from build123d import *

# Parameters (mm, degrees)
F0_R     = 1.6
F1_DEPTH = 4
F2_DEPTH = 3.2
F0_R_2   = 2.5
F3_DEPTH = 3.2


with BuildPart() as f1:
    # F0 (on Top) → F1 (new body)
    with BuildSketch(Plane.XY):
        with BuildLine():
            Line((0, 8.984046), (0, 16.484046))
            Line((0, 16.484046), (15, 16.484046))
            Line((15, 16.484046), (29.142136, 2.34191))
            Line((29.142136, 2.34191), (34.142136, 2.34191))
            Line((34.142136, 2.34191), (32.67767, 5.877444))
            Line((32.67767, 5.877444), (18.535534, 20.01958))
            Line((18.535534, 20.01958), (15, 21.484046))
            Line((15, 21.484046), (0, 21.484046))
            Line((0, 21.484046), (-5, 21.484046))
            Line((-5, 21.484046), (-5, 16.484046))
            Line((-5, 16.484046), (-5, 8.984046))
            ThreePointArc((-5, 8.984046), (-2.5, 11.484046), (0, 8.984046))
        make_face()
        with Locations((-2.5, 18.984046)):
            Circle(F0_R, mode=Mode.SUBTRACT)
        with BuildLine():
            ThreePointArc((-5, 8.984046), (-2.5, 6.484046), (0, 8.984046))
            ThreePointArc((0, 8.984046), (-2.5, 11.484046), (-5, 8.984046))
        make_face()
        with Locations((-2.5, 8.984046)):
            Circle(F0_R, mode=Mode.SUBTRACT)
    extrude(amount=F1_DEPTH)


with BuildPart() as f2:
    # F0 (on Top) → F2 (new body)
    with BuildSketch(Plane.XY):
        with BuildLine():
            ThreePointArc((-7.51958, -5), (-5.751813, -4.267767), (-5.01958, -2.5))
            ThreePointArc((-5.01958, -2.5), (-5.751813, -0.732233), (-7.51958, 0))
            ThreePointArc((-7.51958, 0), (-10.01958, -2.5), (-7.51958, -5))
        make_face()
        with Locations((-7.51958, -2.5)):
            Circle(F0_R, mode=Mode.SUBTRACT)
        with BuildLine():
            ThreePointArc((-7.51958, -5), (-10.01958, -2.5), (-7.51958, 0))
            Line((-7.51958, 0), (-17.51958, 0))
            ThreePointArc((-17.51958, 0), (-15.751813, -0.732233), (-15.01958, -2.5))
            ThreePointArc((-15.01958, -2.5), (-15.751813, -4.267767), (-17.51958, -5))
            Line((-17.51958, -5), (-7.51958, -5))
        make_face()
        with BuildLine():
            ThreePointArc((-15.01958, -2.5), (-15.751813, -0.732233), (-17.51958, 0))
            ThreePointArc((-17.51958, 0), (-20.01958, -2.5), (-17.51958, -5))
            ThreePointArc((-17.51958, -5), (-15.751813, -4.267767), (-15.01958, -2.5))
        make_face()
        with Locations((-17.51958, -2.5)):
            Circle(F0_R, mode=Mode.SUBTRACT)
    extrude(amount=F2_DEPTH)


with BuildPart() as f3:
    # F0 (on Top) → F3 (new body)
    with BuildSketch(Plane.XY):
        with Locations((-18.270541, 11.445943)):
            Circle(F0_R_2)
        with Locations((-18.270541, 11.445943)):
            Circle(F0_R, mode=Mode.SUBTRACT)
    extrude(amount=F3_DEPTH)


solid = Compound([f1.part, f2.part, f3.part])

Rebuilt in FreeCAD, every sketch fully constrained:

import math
import FreeCAD as App
import Part
import Sketcher
from FreeCAD import Vector
Q = App.Units.Quantity

doc = App.newDocument("Part")
params = doc.addObject("Spreadsheet::Sheet", "Params")
for row, (alias, value) in enumerate([
    ("sketch1_diameter", "3.2 mm"),
    ("sketch1_radius", "2.5 mm"),
    ("sketch1_width", "15 mm"),
    ("sketch1_width2", "5 mm"),
    ("sketch1_length", "20.000001 mm"),
    ("pad1_length", "4 mm"),
    ("sketch2_diameter", "3.2 mm"),
    ("sketch2_radius", "2.5 mm"),
    ("sketch2_width", "10 mm"),
    ("pad2_length", "3.2 mm"),
    ("sketch3_diameter", "5 mm"),
    ("sketch3_diameter2", "3.2 mm"),
    ("pad3_length", "3.2 mm"),
], start=1):
    params.set(f"A{row}", alias)
    params.set(f"B{row}", "=" + value)
    params.setAlias(f"B{row}", alias)

body = doc.addObject("PartDesign::Body", "Body")

# Sketch on XY plane
sketch1 = doc.addObject("Sketcher::SketchObject", "Sketch")
body.addObject(sketch1)
sketch1.AttachmentSupport = (doc.XY_Plane, [""])
sketch1.MapMode = "FlatFace"
sketch1.addGeometry([
    Part.LineSegment(Vector(0, 9, 0), Vector(0, 16.5, 0)),  # 0
    Part.LineSegment(Vector(0, 16.5, 0), Vector(15, 16.5, 0)),  # 1
    Part.LineSegment(Vector(15, 16.5, 0), Vector(29.1, 2.3, 0)),  # 2
    Part.LineSegment(Vector(29.1, 2.3, 0), Vector(34.1, 2.3, 0)),  # 3
    Part.LineSegment(Vector(34.1, 2.3, 0), Vector(32.7, 5.9, 0)),  # 4
    Part.LineSegment(Vector(32.7, 5.9, 0), Vector(18.5, 20, 0)),  # 5
    Part.LineSegment(Vector(18.5, 20, 0), Vector(15, 21.5, 0)),  # 6
    Part.LineSegment(Vector(15, 21.5, 0), Vector(-5, 21.5, 0)),  # 7
    Part.LineSegment(Vector(-5, 21.5, 0), Vector(-5, 9, 0)),  # 8
    Part.ArcOfCircle(Part.Circle(Vector(-2.5, 9, 0), Vector(0, 0, 1), 2.5), math.radians(180), math.radians(360)),  # 9
    Part.Circle(Vector(-2.5, 9, 0), Vector(0, 0, 1), 1.6),  # 10
    Part.Circle(Vector(-2.5, 19, 0), Vector(0, 0, 1), 1.6),  # 11
], False)
sketch1.addConstraint([
    Sketcher.Constraint("Coincident", 0, 2, 1, 1),
    Sketcher.Constraint("Coincident", 1, 2, 2, 1),
    Sketcher.Constraint("Coincident", 2, 2, 3, 1),
    Sketcher.Constraint("Coincident", 3, 2, 4, 1),
    Sketcher.Constraint("Coincident", 4, 2, 5, 1),
    Sketcher.Constraint("Coincident", 5, 2, 6, 1),
    Sketcher.Constraint("Coincident", 6, 2, 7, 1),
    Sketcher.Constraint("Coincident", 7, 2, 8, 1),
    Sketcher.Constraint("Tangent", 8, 2, 9, 1),
    Sketcher.Constraint("Tangent", 9, 2, 0, 1),
    Sketcher.Constraint("Vertical", 0),
    Sketcher.Constraint("Horizontal", 1),
    Sketcher.Constraint("Horizontal", 3),
    Sketcher.Constraint("Horizontal", 7),
    Sketcher.Constraint("Vertical", 8),
    Sketcher.Constraint("Coincident", 10, 3, 9, 3),
    Sketcher.Constraint("Equal", 10, 11),
    Sketcher.Constraint("PointOnObject", 0, 2, -2),
    Sketcher.Constraint("Parallel", 2, 5),
    Sketcher.Constraint("Vertical", 10, 3, 11, 3),
    Sketcher.Constraint("Vertical", 1, 2, 6, 2),
    Sketcher.Constraint("Equal", 2, 5),
    Sketcher.Constraint("Equal", 4, 6),
    Sketcher.Constraint("Diameter", 10, Q("3.2 mm")),
    Sketcher.Constraint("Radius", 9, Q("2.5 mm")),
    Sketcher.Constraint("DistanceX", 1, 1, 1, 2, Q("15 mm")),
    Sketcher.Constraint("DistanceX", 3, 1, 3, 2, Q("5 mm")),
    Sketcher.Constraint("Angle", 2, Q("-45 deg")),
    Sketcher.Constraint("Distance", 2, Q("20.000001 mm")),
    Sketcher.Constraint("DistanceY", 0, 1, 0, 2, Q("7.5 mm")),
    Sketcher.Constraint("DistanceY", 8, 2, 8, 1, Q("12.5 mm")),
    Sketcher.Constraint("Angle", 4, Q("112.499998 deg")),
    Sketcher.Constraint("DistanceY", 9, 3, 11, 3, Q("10 mm")),
    Sketcher.Constraint("DistanceY", -1, 1, 2, 2, Q("2.34191 mm")),
])
sketch1.setExpression("Constraints[23]", "Params.sketch1_diameter")
sketch1.setExpression("Constraints[24]", "Params.sketch1_radius")
sketch1.setExpression("Constraints[25]", "Params.sketch1_width")
sketch1.setExpression("Constraints[26]", "Params.sketch1_width2")
sketch1.setExpression("Constraints[28]", "Params.sketch1_length")
pad1 = doc.addObject("PartDesign::Pad", "Pad")
body.addObject(pad1)
pad1.Profile = sketch1
pad1.setExpression("Length", "Params.pad1_length")
body2 = doc.addObject("PartDesign::Body", "Body001")

# Sketch on XY plane
sketch2 = doc.addObject("Sketcher::SketchObject", "Sketch001")
body2.addObject(sketch2)
sketch2.AttachmentSupport = (doc.getObject("XY_Plane001"), [""])
sketch2.MapMode = "FlatFace"
sketch2.addGeometry([
    Part.ArcOfCircle(Part.Circle(Vector(-7.5, -2.5, 0), Vector(0, 0, 1), 2.5), math.radians(-90), math.radians(0)),  # 0
    Part.ArcOfCircle(Part.Circle(Vector(-7.5, -2.5, 0), Vector(0, 0, 1), 2.5), math.radians(0), math.radians(90)),  # 1
    Part.LineSegment(Vector(-7.5, 0, 0), Vector(-17.5, 0, 0)),  # 2
    Part.ArcOfCircle(Part.Circle(Vector(-17.5, -2.5, 0), Vector(0, 0, 1), 2.5), math.radians(90), math.radians(270)),  # 3
    Part.LineSegment(Vector(-17.5, -5, 0), Vector(-7.5, -5, 0)),  # 4
    Part.Circle(Vector(-17.5, -2.5, 0), Vector(0, 0, 1), 1.6),  # 5
    Part.Circle(Vector(-7.5, -2.5, 0), Vector(0, 0, 1), 1.6),  # 6
], False)
sketch2.addConstraint([
    Sketcher.Constraint("Tangent", 0, 2, 1, 1),
    Sketcher.Constraint("Tangent", 1, 2, 2, 1),
    Sketcher.Constraint("Tangent", 2, 2, 3, 1),
    Sketcher.Constraint("Tangent", 3, 2, 4, 1),
    Sketcher.Constraint("Tangent", 4, 2, 0, 1),
    Sketcher.Constraint("Horizontal", 2),
    Sketcher.Constraint("Horizontal", 4),
    Sketcher.Constraint("Coincident", 5, 3, 3, 3),
    Sketcher.Constraint("Coincident", 6, 3, 0, 3),
    Sketcher.Constraint("Equal", 0, 1),
    Sketcher.Constraint("Equal", 5, 6),
    Sketcher.Constraint("PointOnObject", 1, 2, -1),
    Sketcher.Constraint("Horizontal", 6, 3, 0, 2),
    Sketcher.Constraint("Diameter", 5, Q("3.2 mm")),
    Sketcher.Constraint("Radius", 0, Q("2.5 mm")),
    Sketcher.Constraint("DistanceX", 2, 2, 2, 1, Q("10 mm")),
    Sketcher.Constraint("DistanceX", 0, 3, -1, 1, Q("7.51958 mm")),
])
sketch2.setExpression("Constraints[13]", "Params.sketch2_diameter")
sketch2.setExpression("Constraints[14]", "Params.sketch2_radius")
sketch2.setExpression("Constraints[15]", "Params.sketch2_width")
pad2 = doc.addObject("PartDesign::Pad", "Pad001")
body2.addObject(pad2)
pad2.Profile = sketch2
pad2.setExpression("Length", "Params.pad2_length")
body3 = doc.addObject("PartDesign::Body", "Body002")

# Sketch on XY plane
sketch3 = doc.addObject("Sketcher::SketchObject", "Sketch002")
body3.addObject(sketch3)
sketch3.AttachmentSupport = (doc.getObject("XY_Plane002"), [""])
sketch3.MapMode = "FlatFace"
sketch3.addGeometry([
    Part.Circle(Vector(-18.3, 11.4, 0), Vector(0, 0, 1), 2.5),
    Part.Circle(Vector(-18.3, 11.4, 0), Vector(0, 0, 1), 1.6),
], False)
sketch3.addConstraint([
    Sketcher.Constraint("Coincident", 1, 3, 0, 3),
    Sketcher.Constraint("Diameter", 0, Q("5 mm")),
    Sketcher.Constraint("Diameter", 1, Q("3.2 mm")),
    Sketcher.Constraint("DistanceX", 0, 3, -1, 1, Q("18.270541 mm")),
    Sketcher.Constraint("DistanceY", -1, 1, 0, 3, Q("11.445943 mm")),
])
sketch3.setExpression("Constraints[1]", "Params.sketch3_diameter")
sketch3.setExpression("Constraints[2]", "Params.sketch3_diameter2")
pad3 = doc.addObject("PartDesign::Pad", "Pad002")
body3.addObject(pad3)
pad3.Profile = sketch3
pad3.setExpression("Length", "Params.pad3_length")

doc.recompute()
